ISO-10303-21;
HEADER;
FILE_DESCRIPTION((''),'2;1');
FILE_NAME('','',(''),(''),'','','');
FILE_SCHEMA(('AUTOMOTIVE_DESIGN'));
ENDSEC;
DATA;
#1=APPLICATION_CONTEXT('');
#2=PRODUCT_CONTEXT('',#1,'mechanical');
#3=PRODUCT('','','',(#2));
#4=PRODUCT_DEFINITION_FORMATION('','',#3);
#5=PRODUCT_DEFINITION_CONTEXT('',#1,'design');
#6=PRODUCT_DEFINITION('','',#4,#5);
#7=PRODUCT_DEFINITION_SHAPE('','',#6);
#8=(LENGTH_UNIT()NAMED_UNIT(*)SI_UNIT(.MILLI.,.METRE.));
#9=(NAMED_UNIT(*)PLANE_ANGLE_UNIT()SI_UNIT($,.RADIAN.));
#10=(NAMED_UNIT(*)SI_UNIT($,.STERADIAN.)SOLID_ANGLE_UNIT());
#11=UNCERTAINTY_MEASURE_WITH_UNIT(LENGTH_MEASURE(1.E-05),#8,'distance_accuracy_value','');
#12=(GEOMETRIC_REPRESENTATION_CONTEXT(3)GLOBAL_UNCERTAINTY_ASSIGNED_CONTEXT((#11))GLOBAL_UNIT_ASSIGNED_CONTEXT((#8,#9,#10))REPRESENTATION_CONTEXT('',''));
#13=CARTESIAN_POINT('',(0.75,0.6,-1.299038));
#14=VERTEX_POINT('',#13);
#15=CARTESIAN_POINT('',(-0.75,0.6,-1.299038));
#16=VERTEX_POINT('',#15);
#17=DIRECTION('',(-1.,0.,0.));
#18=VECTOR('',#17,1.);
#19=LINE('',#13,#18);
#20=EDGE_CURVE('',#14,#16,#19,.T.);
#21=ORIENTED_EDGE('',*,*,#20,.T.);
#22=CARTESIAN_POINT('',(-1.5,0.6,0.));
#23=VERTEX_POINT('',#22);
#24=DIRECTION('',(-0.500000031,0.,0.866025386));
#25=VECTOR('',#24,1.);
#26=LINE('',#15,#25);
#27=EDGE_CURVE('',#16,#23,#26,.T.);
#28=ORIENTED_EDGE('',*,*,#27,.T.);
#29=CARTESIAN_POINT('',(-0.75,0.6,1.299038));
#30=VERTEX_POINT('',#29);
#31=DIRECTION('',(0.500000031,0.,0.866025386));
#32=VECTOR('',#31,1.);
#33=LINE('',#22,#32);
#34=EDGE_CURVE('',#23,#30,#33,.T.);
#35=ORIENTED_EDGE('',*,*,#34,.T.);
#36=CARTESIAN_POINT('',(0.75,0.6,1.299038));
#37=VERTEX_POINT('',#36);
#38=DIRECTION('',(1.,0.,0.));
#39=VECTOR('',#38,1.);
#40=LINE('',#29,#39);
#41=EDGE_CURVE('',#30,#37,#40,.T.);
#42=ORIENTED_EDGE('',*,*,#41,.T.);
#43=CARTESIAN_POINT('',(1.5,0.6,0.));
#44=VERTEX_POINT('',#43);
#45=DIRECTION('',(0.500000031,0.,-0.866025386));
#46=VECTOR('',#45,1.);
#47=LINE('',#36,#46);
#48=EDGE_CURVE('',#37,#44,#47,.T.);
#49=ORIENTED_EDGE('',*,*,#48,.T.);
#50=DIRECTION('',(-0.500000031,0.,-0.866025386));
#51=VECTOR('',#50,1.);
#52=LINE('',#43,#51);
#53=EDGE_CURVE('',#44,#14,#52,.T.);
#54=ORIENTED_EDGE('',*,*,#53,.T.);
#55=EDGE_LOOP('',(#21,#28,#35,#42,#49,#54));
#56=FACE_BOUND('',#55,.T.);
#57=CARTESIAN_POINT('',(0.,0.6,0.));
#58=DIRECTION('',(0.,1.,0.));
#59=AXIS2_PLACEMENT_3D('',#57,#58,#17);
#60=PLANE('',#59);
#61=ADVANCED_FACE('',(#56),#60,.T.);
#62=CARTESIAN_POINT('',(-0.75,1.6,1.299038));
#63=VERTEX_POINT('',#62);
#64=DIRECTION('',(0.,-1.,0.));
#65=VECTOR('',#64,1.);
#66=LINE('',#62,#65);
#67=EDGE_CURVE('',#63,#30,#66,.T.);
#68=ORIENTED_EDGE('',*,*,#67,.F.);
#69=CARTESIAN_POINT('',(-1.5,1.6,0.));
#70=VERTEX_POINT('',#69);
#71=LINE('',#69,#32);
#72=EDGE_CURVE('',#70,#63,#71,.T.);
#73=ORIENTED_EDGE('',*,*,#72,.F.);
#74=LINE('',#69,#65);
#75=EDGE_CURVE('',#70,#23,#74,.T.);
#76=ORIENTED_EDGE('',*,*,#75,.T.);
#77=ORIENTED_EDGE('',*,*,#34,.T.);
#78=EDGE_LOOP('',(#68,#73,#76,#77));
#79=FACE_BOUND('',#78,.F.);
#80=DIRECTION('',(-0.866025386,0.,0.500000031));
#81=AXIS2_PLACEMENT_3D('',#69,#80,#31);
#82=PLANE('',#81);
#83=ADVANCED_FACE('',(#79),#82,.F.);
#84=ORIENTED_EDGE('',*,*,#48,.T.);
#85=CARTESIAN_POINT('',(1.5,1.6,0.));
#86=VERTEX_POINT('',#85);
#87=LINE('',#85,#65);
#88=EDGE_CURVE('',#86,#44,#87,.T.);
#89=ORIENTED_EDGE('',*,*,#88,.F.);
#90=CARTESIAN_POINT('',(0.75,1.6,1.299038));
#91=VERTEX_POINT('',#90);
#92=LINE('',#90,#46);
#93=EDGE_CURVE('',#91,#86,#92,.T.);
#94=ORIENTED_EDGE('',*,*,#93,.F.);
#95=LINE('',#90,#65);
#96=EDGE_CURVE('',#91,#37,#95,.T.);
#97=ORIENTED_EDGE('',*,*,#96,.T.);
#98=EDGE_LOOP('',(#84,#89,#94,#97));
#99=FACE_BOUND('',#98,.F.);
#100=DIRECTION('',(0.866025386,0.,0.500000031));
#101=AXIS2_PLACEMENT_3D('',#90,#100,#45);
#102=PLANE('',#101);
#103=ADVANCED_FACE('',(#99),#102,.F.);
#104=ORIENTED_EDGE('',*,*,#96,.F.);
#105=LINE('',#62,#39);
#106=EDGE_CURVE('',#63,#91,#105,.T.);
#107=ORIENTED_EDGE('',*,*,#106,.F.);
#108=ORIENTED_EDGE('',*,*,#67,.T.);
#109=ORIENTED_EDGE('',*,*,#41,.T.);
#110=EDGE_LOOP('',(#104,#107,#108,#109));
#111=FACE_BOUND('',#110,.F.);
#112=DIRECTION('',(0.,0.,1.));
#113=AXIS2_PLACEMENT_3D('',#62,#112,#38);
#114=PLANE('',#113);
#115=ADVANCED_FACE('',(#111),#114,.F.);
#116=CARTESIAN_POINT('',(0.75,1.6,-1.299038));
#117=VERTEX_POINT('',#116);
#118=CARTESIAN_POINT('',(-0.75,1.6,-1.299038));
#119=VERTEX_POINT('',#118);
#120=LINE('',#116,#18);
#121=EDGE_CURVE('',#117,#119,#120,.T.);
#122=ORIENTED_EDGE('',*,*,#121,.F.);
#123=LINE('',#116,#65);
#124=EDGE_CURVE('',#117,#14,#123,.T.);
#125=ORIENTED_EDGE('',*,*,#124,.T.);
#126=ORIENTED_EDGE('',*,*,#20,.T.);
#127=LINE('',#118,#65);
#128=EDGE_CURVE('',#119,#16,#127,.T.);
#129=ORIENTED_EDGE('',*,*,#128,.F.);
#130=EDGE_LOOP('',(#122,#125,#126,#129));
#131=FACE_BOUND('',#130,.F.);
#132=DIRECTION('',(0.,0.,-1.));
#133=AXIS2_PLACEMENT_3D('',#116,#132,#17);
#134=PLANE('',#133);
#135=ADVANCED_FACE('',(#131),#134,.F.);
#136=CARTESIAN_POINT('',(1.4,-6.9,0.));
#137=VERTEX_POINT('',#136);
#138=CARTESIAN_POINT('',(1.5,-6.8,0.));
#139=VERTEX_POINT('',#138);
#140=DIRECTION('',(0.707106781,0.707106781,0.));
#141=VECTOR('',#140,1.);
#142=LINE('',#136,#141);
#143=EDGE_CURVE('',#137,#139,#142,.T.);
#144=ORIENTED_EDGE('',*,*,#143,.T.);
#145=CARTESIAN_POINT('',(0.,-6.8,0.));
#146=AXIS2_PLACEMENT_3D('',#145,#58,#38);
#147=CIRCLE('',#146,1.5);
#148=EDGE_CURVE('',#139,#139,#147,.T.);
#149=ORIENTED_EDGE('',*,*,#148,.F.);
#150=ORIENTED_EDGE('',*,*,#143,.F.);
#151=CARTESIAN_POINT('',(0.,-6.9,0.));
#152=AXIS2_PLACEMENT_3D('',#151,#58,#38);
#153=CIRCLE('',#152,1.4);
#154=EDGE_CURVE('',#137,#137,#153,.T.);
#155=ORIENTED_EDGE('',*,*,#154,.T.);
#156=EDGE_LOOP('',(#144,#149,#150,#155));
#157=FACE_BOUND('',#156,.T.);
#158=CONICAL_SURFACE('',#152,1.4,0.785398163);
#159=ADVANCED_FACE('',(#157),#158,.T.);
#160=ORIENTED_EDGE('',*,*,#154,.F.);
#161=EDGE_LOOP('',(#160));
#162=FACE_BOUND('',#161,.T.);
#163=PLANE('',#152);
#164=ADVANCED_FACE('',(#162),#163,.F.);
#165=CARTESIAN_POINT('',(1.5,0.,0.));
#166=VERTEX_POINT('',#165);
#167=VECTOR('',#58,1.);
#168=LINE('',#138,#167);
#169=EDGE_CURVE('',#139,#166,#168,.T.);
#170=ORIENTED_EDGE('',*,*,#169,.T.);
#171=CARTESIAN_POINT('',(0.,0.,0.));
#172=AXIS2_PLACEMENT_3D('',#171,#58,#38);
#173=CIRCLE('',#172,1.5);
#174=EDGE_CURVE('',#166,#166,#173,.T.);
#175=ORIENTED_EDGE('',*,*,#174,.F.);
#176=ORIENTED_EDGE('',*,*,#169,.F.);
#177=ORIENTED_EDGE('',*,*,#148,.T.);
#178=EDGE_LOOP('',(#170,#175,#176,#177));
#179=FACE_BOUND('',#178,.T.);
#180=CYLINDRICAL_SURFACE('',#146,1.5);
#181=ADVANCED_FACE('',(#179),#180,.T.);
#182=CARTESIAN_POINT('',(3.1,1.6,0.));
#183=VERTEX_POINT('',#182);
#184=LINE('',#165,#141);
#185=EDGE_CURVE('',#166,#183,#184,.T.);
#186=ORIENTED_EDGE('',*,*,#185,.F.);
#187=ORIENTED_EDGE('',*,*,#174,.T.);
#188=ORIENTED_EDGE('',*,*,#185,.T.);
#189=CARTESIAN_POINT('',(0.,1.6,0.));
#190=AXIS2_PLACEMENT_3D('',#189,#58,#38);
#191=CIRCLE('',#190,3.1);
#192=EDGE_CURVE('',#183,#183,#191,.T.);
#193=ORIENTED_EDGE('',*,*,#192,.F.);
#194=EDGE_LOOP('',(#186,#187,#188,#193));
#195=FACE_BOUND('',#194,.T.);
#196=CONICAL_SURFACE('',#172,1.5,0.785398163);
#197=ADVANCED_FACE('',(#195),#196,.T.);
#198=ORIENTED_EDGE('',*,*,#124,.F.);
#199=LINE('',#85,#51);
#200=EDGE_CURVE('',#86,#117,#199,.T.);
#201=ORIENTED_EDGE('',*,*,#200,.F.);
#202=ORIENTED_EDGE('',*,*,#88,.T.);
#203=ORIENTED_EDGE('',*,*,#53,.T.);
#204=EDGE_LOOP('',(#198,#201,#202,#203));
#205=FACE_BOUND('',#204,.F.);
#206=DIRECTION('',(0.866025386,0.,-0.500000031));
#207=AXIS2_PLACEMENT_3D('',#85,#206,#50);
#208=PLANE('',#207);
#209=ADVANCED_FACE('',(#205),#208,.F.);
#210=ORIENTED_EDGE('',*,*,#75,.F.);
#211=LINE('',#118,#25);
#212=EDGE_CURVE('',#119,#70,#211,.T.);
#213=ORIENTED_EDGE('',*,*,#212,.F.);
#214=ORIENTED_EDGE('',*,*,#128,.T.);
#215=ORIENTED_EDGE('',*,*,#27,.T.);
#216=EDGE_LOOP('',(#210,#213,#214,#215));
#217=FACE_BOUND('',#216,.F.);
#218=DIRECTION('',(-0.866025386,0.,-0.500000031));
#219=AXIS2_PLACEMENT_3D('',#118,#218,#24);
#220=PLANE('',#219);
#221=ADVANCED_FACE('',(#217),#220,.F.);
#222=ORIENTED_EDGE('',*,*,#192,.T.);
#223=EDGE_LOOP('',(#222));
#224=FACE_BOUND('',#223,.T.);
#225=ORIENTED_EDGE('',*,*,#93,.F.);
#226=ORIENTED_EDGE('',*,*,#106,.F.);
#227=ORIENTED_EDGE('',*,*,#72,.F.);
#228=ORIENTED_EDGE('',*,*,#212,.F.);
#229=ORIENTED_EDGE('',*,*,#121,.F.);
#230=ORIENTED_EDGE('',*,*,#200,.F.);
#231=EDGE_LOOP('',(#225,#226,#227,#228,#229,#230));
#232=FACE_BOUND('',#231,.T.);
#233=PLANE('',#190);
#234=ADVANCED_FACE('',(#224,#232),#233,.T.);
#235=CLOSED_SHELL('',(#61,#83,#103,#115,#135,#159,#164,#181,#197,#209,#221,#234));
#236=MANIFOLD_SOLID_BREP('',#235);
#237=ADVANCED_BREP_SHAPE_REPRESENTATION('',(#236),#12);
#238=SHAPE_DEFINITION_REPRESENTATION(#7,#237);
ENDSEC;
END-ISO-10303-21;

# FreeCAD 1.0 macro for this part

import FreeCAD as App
import Part
import Sketcher

V = App.Vector
Q = App.Units.Quantity


def add_polygon(sketch, points):
    """Adds a closed chain of lines whose ends are joined by coincident constraints."""
    first, n = sketch.GeometryCount, len(points)
    for a, b in zip(points, points[1:] + points[:1]):
        sketch.addGeometry(Part.LineSegment(App.Vector(*a, 0), App.Vector(*b, 0)), False)
    for i in range(n):
        sketch.addConstraint(Sketcher.Constraint("Coincident", first + i, 2, first + (i + 1) % n, 1))

doc = App.newDocument("Part")
body = doc.addObject("PartDesign::Body", "Body")

sketch1 = body.newObject("Sketcher::SketchObject", "Sketch")
sketch1.AttachmentSupport = (doc.getObject("XY_Plane"), [""])
sketch1.MapMode = "FlatFace"
add_polygon(sketch1, [(0, -6.9), (1.4, -6.9), (1.5, -6.8), (1.5, 0), (3.1, 1.6), (0, 1.6)])
sketch1.addConstraint(Sketcher.Constraint("Horizontal", 0))
sketch1.addConstraint(Sketcher.Constraint("Vertical", 2))
sketch1.addConstraint(Sketcher.Constraint("Horizontal", 4))
sketch1.addConstraint(Sketcher.Constraint("Vertical", 5))
sketch1.addConstraint(Sketcher.Constraint("PointOnObject", 2, 2, -1))
sketch1.addConstraint(Sketcher.Constraint("PointOnObject", 4, 2, -2))
sketch1.addConstraint(Sketcher.Constraint("Parallel", 1, 3))
sketch1.addConstraint(Sketcher.Constraint("Angle", 1, Q("45 deg")))
sketch1.addConstraint(Sketcher.Constraint("DistanceX", 0, 1, 0, 2, Q("1.4 mm")))
sketch1.addConstraint(Sketcher.Constraint("DistanceX", 4, 2, 4, 1, Q("3.1 mm")))
sketch1.addConstraint(Sketcher.Constraint("DistanceY", 2, 1, 2, 2, Q("6.8 mm")))
sketch1.addConstraint(Sketcher.Constraint("DistanceY", 0, 2, -1, 1, Q("6.9 mm")))
revolution = body.newObject("PartDesign::Revolution", "Revolution")
revolution.Profile = sketch1
revolution.ReferenceAxis = (sketch1, ["V_Axis"])
revolution.Angle = 360

sketch2 = body.newObject("Sketcher::SketchObject", "Sketch001")
sketch2.AttachmentSupport = (doc.getObject("XZ_Plane"), [""])
sketch2.MapMode = "FlatFace"
sketch2.AttachmentOffset = App.Placement(V(0, 0, -1.6), App.Rotation())
add_polygon(sketch2, [(-0.8, -1.3), (-1.5, 0), (-0.8, 1.3), (0.8, 1.3), (1.5, 0), (0.8, -1.3)])
sketch2.addConstraint(Sketcher.Constraint("Horizontal", 2))
sketch2.addConstraint(Sketcher.Constraint("Horizontal", 5))
sketch2.addConstraint(Sketcher.Constraint("Symmetric", 0, 2, 3, 2, -1, 1))
sketch2.addConstraint(Sketcher.Constraint("Symmetric", 1, 2, 4, 2, -1, 1))
sketch2.addConstraint(Sketcher.Constraint("PointOnObject", 0, 2, -1))
sketch2.addConstraint(Sketcher.Constraint("Parallel", 0, 3))
sketch2.addConstraint(Sketcher.Constraint("Vertical", 2, 2, 4, 2))
sketch2.addConstraint(Sketcher.Constraint("Angle", 0, Q("120.000002 deg")))
sketch2.addConstraint(Sketcher.Constraint("DistanceX", 2, 1, 2, 2, Q("1.5 mm")))
sketch2.addConstraint(Sketcher.Constraint("DistanceX", 0, 2, 3, 2, Q("3 mm")))
pocket1 = body.newObject("PartDesign::Pocket", "Pocket")
pocket1.Profile = sketch2
pocket1.Length = 1
pocket1.Reversed = True

doc.recompute()
